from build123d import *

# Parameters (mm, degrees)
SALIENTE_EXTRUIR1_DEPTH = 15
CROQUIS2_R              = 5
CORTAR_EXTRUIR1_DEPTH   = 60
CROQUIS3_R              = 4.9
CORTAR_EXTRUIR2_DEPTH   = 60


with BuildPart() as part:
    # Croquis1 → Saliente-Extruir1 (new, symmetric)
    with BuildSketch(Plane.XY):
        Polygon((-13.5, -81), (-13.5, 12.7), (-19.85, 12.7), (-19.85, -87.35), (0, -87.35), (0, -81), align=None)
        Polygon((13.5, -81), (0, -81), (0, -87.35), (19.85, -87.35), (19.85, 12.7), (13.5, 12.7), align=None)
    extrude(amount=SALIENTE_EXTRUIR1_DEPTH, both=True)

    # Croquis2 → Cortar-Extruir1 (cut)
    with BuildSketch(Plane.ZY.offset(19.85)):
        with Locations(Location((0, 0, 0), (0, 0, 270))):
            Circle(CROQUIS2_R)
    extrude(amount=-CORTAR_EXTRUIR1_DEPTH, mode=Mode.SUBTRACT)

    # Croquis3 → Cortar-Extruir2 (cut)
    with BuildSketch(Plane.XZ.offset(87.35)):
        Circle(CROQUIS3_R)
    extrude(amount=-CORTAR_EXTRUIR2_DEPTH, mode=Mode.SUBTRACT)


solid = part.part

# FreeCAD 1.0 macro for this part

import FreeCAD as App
import Part
import Sketcher

V = App.Vector

doc = App.newDocument("Part")
params = doc.addObject("Spreadsheet::Sheet", "Params")
for row, (alias, value) in enumerate([
    ("sketch1_width", "27 mm"),
    ("sketch1_width2", "39.7 mm"),
    ("sketch1_height", "93.7 mm"),
    ("sketch1_height2", "100.05 mm"),
    ("pad1_length", "30 mm"),
    ("sketch2_diameter", "10 mm"),
    ("pocket1_length", "60 mm"),
    ("sketch3_diameter", "9.8 mm"),
    ("pocket2_length", "60 mm"),
], start=1):
    params.set(f"A{row}", alias)
    params.set(f"B{row}", "=" + value)
    params.setAlias(f"B{row}", alias)

body = doc.addObject("PartDesign::Body", "Body")

# Sketch on XY plane
sketch1 = body.newObject("Sketcher::SketchObject", "Sketch")
sketch1.AttachmentSupport = (doc.getObject("XY_Plane"), [""])
sketch1.MapMode = "FlatFace"
sketch1.addGeometry([
    Part.LineSegment(V(-13.5, -81, 0), V(-13.5, 12.7, 0)),  # 0
    Part.LineSegment(V(-13.5, 12.7, 0), V(-19.85, 12.7, 0)),  # 1
    Part.LineSegment(V(-19.85, 12.7, 0), V(-19.85, -87.35, 0)),  # 2
    Part.LineSegment(V(-19.85, -87.35, 0), V(19.85, -87.35, 0)),  # 3
    Part.LineSegment(V(19.85, -87.35, 0), V(19.85, 12.7, 0)),  # 4
    Part.LineSegment(V(19.85, 12.7, 0), V(13.5, 12.7, 0)),  # 5
    Part.LineSegment(V(13.5, 12.7, 0), V(13.5, -81, 0)),  # 6
    Part.LineSegment(V(13.5, -81, 0), V(-13.5, -81, 0)),  # 7
], False)
sketch1.addConstraint([
    Sketcher.Constraint("Coincident", 0, 2, 1, 1),
    Sketcher.Constraint("Coincident", 1, 2, 2, 1),
    Sketcher.Constraint("Coincident", 2, 2, 3, 1),
    Sketcher.Constraint("Coincident", 3, 2, 4, 1),
    Sketcher.Constraint("Coincident", 4, 2, 5, 1),
    Sketcher.Constraint("Coincident", 5, 2, 6, 1),
    Sketcher.Constraint("Coincident", 6, 2, 7, 1),
    Sketcher.Constraint("Coincident", 7, 2, 0, 1),
    Sketcher.Constraint("Vertical", 0),
    Sketcher.Constraint("Horizontal", 1),
    Sketcher.Constraint("Vertical", 2),
    Sketcher.Constraint("Horizontal", 3),
    Sketcher.Constraint("Vertical", 4),
    Sketcher.Constraint("Horizontal", 5),
    Sketcher.Constraint("Vertical", 6),
    Sketcher.Constraint("Horizontal", 7),
    Sketcher.Constraint("Symmetric", 1, 2, 4, 2, -2),
    Sketcher.Constraint("Equal", 1, 5),
    Sketcher.Constraint("DistanceX", 7, 2, 7, 1, 27.0),
    Sketcher.Constraint("DistanceX", 3, 1, 3, 2, 39.7),
    Sketcher.Constraint("DistanceY", 0, 1, 0, 2, 93.7),
    Sketcher.Constraint("DistanceY", 6, 2, -1, 1, 81.0),
    Sketcher.Constraint("DistanceY", 2, 2, 2, 1, 100.05),
])
sketch1.setExpression("Constraints[18]", "Params.sketch1_width")
sketch1.setExpression("Constraints[19]", "Params.sketch1_width2")
sketch1.setExpression("Constraints[20]", "Params.sketch1_height")
sketch1.setExpression("Constraints[22]", "Params.sketch1_height2")
pad1 = body.newObject("PartDesign::Pad", "Pad")
pad1.Profile = sketch1
pad1.setExpression("Length", "Params.pad1_length")
pad1.Midplane = True

# Sketch on YZ plane
sketch2 = body.newObject("Sketcher::SketchObject", "Sketch001")
sketch2.AttachmentSupport = (doc.getObject("YZ_Plane"), [""])
sketch2.MapMode = "FlatFace"
sketch2.AttachmentOffset = App.Placement(V(0, 0, -19.85), App.Rotation())
sketch2.addGeometry(Part.Circle(V(0, 0, 0), V(0, 0, 1), 5), False)
sketch2.addConstraint([
    Sketcher.Constraint("Coincident", 0, 3, -1, 1),
    Sketcher.Constraint("Diameter", 0, 10.0),
])
sketch2.setExpression("Constraints[1]", "Params.sketch2_diameter")
pocket1 = body.newObject("PartDesign::Pocket", "Pocket")
pocket1.Profile = sketch2
pocket1.setExpression("Length", "Params.pocket1_length")
pocket1.Reversed = True

# Sketch on XZ plane
sketch3 = body.newObject("Sketcher::SketchObject", "Sketch002")
sketch3.AttachmentSupport = (doc.getObject("XZ_Plane"), [""])
sketch3.MapMode = "FlatFace"
sketch3.AttachmentOffset = App.Placement(V(0, 0, 87.35), App.Rotation())
sketch3.addGeometry(Part.Circle(V(0, 0, 0), V(0, 0, 1), 4.9), False)
sketch3.addConstraint([
    Sketcher.Constraint("Coincident", 0, 3, -1, 1),
    Sketcher.Constraint("Diameter", 0, 9.8),
])
sketch3.setExpression("Constraints[1]", "Params.sketch3_diameter")
pocket2 = body.newObject("PartDesign::Pocket", "Pocket001")
pocket2.Profile = sketch3
pocket2.setExpression("Length", "Params.pocket2_length")

doc.recompute()
